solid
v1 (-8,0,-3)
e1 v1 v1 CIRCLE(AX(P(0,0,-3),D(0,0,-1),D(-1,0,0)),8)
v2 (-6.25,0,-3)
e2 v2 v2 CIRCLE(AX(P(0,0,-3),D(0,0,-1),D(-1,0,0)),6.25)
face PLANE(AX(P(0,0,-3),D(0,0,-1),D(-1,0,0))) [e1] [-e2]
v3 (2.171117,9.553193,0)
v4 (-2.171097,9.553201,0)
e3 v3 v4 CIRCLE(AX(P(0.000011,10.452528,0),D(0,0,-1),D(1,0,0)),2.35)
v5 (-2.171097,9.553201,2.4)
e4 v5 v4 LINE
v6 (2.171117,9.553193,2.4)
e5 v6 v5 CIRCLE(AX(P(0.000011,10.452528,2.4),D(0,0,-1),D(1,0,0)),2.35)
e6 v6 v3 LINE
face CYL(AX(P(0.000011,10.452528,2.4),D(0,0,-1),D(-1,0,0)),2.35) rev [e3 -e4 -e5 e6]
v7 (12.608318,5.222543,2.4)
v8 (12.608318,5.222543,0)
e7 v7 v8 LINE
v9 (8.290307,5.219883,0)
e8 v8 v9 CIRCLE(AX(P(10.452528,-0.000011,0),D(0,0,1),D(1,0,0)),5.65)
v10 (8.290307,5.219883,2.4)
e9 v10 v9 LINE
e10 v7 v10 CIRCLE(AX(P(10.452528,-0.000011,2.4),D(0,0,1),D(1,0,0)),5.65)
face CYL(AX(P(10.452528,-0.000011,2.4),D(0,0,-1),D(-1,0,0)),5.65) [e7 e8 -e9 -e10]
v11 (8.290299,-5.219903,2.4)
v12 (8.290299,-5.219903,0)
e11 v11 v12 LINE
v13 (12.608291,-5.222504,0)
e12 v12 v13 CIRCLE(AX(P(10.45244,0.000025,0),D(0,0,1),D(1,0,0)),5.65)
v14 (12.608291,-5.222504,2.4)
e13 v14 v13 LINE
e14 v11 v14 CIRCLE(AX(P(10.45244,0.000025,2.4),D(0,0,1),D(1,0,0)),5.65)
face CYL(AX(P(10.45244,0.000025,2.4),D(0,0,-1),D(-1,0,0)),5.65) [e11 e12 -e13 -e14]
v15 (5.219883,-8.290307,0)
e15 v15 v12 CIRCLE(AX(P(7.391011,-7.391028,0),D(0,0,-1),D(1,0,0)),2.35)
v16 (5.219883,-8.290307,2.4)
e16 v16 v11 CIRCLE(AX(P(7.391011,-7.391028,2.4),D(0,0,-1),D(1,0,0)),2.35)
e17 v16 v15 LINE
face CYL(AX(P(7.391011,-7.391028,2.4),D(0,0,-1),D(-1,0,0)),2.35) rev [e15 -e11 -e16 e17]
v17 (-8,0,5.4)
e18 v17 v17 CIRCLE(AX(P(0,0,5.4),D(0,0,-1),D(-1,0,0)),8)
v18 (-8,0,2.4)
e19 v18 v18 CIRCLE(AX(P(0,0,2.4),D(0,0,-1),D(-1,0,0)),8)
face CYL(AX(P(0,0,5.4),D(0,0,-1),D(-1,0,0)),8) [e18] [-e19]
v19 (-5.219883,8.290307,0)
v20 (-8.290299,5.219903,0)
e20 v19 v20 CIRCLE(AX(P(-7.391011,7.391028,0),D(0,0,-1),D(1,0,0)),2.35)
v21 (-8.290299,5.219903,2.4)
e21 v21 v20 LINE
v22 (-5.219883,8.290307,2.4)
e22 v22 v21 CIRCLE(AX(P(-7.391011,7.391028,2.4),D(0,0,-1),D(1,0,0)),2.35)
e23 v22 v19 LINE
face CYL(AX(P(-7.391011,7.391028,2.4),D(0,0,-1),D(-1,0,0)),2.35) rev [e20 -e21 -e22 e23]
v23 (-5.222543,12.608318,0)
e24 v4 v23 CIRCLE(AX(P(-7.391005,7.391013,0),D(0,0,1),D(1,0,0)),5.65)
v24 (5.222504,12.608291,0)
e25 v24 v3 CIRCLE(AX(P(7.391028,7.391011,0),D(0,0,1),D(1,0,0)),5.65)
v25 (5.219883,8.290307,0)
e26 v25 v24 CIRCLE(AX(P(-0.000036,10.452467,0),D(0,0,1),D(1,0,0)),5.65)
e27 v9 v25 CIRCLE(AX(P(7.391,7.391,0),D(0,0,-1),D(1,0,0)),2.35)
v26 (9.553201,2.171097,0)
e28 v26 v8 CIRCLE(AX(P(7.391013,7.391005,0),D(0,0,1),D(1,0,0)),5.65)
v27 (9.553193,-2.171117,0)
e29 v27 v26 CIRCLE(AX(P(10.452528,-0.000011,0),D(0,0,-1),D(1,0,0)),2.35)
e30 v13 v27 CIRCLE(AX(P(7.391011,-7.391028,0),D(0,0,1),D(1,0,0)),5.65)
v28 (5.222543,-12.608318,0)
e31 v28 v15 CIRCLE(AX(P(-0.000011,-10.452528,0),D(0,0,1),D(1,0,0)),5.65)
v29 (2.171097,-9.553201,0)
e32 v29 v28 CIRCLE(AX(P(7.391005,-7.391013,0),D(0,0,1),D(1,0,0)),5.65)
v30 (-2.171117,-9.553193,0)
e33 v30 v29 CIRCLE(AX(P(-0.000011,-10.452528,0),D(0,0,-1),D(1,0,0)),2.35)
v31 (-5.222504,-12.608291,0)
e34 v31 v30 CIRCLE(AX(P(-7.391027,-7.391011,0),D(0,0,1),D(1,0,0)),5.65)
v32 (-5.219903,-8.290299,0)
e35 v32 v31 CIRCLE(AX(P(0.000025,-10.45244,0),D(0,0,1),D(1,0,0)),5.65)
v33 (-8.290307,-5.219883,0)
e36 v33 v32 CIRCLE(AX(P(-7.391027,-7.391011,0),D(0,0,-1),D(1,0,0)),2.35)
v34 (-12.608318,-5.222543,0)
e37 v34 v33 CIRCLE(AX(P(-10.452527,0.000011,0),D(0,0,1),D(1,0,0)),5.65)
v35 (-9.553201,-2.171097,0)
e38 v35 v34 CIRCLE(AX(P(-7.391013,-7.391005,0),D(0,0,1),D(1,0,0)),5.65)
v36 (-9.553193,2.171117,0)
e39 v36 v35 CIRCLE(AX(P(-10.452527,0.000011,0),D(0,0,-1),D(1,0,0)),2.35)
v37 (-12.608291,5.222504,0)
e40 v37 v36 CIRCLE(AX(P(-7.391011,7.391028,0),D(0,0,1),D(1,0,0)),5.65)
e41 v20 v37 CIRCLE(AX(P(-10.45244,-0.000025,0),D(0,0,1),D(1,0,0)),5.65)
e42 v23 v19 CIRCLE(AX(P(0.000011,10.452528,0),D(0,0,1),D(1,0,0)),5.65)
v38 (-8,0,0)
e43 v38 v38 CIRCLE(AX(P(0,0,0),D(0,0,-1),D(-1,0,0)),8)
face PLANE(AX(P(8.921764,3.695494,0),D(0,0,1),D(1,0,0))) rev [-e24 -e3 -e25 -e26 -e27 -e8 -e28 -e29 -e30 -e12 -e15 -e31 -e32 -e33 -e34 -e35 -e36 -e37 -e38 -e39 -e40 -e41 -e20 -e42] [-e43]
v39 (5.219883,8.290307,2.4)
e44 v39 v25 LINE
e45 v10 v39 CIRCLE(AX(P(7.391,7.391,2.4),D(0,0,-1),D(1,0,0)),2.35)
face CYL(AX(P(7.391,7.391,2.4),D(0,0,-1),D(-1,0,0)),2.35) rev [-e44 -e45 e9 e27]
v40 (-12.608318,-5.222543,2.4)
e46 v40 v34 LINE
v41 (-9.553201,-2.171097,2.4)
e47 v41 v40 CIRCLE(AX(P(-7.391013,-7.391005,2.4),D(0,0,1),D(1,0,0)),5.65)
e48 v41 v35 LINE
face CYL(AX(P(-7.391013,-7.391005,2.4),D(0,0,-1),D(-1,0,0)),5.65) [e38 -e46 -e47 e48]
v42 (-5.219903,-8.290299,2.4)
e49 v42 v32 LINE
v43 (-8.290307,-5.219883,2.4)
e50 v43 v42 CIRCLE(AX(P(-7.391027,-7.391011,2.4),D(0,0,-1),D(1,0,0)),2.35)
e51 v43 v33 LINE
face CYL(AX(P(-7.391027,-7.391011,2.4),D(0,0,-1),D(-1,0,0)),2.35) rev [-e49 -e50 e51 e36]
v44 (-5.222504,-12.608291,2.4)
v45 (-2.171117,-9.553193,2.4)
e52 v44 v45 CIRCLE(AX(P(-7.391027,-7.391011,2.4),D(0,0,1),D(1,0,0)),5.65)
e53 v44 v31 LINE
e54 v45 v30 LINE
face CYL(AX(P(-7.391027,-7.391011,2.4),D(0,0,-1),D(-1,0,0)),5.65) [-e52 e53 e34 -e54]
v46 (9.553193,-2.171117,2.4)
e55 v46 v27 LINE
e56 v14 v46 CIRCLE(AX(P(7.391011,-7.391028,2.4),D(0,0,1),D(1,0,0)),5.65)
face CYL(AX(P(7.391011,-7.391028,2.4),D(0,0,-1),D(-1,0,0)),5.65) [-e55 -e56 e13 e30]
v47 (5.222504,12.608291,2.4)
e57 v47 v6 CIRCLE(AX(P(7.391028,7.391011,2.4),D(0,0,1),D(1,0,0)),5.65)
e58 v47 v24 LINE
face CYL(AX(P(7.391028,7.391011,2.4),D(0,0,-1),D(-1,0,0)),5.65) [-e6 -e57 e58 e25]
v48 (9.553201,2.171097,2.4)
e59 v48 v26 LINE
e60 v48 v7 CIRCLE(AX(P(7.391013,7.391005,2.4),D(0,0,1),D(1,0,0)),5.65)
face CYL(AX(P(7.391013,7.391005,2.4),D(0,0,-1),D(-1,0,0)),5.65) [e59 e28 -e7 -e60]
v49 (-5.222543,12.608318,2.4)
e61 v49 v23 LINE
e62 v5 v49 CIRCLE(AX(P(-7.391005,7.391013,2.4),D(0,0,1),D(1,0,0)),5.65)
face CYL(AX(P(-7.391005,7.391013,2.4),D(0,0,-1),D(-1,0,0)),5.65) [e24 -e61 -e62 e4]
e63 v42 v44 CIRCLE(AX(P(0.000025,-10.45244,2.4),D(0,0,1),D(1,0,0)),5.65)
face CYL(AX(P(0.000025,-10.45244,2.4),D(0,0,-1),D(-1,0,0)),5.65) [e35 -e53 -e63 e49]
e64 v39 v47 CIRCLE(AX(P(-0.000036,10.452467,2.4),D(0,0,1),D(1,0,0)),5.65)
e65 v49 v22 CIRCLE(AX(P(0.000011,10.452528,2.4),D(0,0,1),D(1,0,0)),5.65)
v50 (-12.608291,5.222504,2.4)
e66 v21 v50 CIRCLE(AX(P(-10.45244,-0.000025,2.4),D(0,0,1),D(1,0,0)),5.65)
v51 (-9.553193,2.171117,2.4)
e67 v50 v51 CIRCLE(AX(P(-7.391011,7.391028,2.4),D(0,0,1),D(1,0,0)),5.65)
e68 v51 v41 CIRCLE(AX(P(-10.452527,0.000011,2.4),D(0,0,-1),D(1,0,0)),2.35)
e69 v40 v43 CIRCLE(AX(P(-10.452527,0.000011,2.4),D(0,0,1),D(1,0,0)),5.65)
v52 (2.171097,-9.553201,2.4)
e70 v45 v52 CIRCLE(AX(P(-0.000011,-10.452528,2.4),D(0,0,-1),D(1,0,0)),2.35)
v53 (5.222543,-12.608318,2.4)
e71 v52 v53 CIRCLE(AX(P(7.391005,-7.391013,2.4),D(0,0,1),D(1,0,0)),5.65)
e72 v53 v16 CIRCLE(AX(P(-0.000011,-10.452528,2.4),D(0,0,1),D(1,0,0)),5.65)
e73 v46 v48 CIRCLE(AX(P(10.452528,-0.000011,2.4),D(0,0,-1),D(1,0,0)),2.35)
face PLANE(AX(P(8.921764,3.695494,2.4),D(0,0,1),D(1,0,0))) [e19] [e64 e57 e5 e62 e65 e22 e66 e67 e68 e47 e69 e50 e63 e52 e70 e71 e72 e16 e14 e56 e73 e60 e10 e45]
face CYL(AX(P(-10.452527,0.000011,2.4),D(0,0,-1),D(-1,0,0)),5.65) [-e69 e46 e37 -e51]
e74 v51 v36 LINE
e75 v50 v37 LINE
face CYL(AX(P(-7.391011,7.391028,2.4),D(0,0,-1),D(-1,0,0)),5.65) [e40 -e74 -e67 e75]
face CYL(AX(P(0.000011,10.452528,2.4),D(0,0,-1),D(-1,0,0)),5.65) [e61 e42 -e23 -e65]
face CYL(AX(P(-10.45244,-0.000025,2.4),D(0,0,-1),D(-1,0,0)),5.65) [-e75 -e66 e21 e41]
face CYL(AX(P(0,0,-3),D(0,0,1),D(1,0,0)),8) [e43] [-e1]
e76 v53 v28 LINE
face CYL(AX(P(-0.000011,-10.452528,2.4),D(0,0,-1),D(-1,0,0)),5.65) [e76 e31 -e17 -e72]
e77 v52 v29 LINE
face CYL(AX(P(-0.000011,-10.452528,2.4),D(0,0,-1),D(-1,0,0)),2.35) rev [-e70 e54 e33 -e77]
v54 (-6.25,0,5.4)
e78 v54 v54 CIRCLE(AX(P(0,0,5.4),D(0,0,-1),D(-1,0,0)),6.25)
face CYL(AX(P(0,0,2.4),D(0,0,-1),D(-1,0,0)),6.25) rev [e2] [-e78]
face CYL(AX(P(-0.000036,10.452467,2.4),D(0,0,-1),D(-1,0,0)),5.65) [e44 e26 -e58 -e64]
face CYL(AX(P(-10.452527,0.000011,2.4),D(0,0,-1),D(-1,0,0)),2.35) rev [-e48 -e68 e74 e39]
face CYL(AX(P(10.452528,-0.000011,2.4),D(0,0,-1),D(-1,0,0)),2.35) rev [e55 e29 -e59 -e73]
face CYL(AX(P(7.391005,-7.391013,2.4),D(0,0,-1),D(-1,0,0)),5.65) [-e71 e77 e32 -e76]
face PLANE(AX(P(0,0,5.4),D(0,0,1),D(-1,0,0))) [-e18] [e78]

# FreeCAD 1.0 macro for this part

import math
import FreeCAD as App
import Part
import Sketcher
from FreeCAD import Vector

doc = App.newDocument("Part")
body = doc.addObject("PartDesign::Body", "Body")

sketch1 = body.newObject("Sketcher::SketchObject", "Sketch")
sketch1.AttachmentSupport = (doc.getObject("XY_Plane"), [""])
sketch1.MapMode = "FlatFace"
sketch1.addGeometry(Part.ArcOfCircle(Part.Circle(Vector(0, 10.5, 0), Vector(0, 0, 1), 5.7), math.radians(-22), math.radians(22)), False)
sketch1.addGeometry(Part.ArcOfCircle(Part.Circle(Vector(7.4, 7.4, 0), Vector(0, 0, 1), 5.7), math.radians(113), math.radians(157)), False)
sketch1.addGeometry(Part.ArcOfCircle(Part.Circle(Vector(0, 10.5, 0), Vector(0, 0, 1), 2.3), math.radians(-157), math.radians(-23)), False)
sketch1.addGeometry(Part.ArcOfCircle(Part.Circle(Vector(-7.4, 7.4, 0), Vector(0, 0, 1), 5.6), math.radians(23), math.radians(67)), False)
sketch1.addGeometry(Part.ArcOfCircle(Part.Circle(Vector(0, 10.5, 0), Vector(0, 0, 1), 5.7), math.radians(158), math.radians(203)), False)
sketch1.addGeometry(Part.ArcOfCircle(Part.Circle(Vector(-7.4, 7.4, 0), Vector(0, 0, 1), 2.3), math.radians(-112), math.radians(22)), False)
sketch1.addGeometry(Part.ArcOfCircle(Part.Circle(Vector(-10.5, 0, 0), Vector(0, 0, 1), 5.6), math.radians(68), math.radians(112)), False)
sketch1.addGeometry(Part.ArcOfCircle(Part.Circle(Vector(-7.4, 7.4, 0), Vector(0, 0, 1), 5.7), math.radians(-157), math.radians(-113)), False)
sketch1.addGeometry(Part.ArcOfCircle(Part.Circle(Vector(-10.5, 0, 0), Vector(0, 0, 1), 2.4), math.radians(-67), math.radians(67)), False)
sketch1.addGeometry(Part.ArcOfCircle(Part.Circle(Vector(-7.4, -7.4, 0), Vector(0, 0, 1), 5.6), math.radians(113), math.radians(157)), False)
sketch1.addGeometry(Part.ArcOfCircle(Part.Circle(Vector(-10.5, 0, 0), Vector(0, 0, 1), 5.7), math.radians(-112), math.radians(-67)), False)
sketch1.addGeometry(Part.ArcOfCircle(Part.Circle(Vector(-7.4, -7.4, 0), Vector(0, 0, 1), 2.4), math.radians(-22), math.radians(112)), False)
sketch1.addGeometry(Part.ArcOfCircle(Part.Circle(Vector(0, -10.5, 0), Vector(0, 0, 1), 5.7), math.radians(158), math.radians(202)), False)
sketch1.addGeometry(Part.ArcOfCircle(Part.Circle(Vector(-7.4, -7.4, 0), Vector(0, 0, 1), 5.7), math.radians(-67), math.radians(-23)), False)
sketch1.addGeometry(Part.ArcOfCircle(Part.Circle(Vector(0, -10.5, 0), Vector(0, 0, 1), 2.4), math.radians(23), math.radians(157)), False)
sketch1.addGeometry(Part.ArcOfCircle(Part.Circle(Vector(7.4, -7.4, 0), Vector(0, 0, 1), 5.6), math.radians(-157), math.radians(-113)), False)
sketch1.addGeometry(Part.ArcOfCircle(Part.Circle(Vector(0, -10.5, 0), Vector(0, 0, 1), 5.7), math.radians(-22), math.radians(23)), False)
sketch1.addGeometry(Part.ArcOfCircle(Part.Circle(Vector(7.4, -7.4, 0), Vector(0, 0, 1), 2.4), math.radians(68), math.radians(202)), False)
sketch1.addGeometry(Part.ArcOfCircle(Part.Circle(Vector(10.5, 0, 0), Vector(0, 0, 1), 5.6), math.radians(-112), math.radians(-68)), False)
sketch1.addGeometry(Part.ArcOfCircle(Part.Circle(Vector(7.4, -7.4, 0), Vector(0, 0, 1), 5.7), math.radians(23), math.radians(67)), False)
sketch1.addGeometry(Part.ArcOfCircle(Part.Circle(Vector(10.5, 0, 0), Vector(0, 0, 1), 2.4), math.radians(113), math.radians(247)), False)
sketch1.addGeometry(Part.ArcOfCircle(Part.Circle(Vector(7.4, 7.4, 0), Vector(0, 0, 1), 5.7), math.radians(-67), math.radians(-23)), False)
sketch1.addGeometry(Part.ArcOfCircle(Part.Circle(Vector(10.5, 0, 0), Vector(0, 0, 1), 5.7), math.radians(68), math.radians(113)), False)
sketch1.addGeometry(Part.ArcOfCircle(Part.Circle(Vector(7.4, 7.4, 0), Vector(0, 0, 1), 2.4), math.radians(157), math.radians(293)), False)
sketch1.addGeometry(Part.Circle(Vector(0, 0, 0), Vector(0, 0, 1), 6.2), False)
sketch1.addConstraint(Sketcher.Constraint("Coincident", 0, 2, 1, 1))
sketch1.addConstraint(Sketcher.Constraint("Coincident", 1, 2, 2, 2))
sketch1.addConstraint(Sketcher.Constraint("Coincident", 2, 1, 3, 1))
sketch1.addConstraint(Sketcher.Constraint("Coincident", 3, 2, 4, 1))
sketch1.addConstraint(Sketcher.Constraint("Coincident", 4, 2, 5, 2))
sketch1.addConstraint(Sketcher.Constraint("Coincident", 5, 1, 6, 1))
sketch1.addConstraint(Sketcher.Constraint("Coincident", 6, 2, 7, 1))
sketch1.addConstraint(Sketcher.Constraint("Coincident", 7, 2, 8, 2))
sketch1.addConstraint(Sketcher.Constraint("Coincident", 8, 1, 9, 1))
sketch1.addConstraint(Sketcher.Constraint("Coincident", 9, 2, 10, 1))
sketch1.addConstraint(Sketcher.Constraint("Coincident", 10, 2, 11, 2))
sketch1.addConstraint(Sketcher.Constraint("Coincident", 11, 1, 12, 1))
sketch1.addConstraint(Sketcher.Constraint("Coincident", 12, 2, 13, 1))
sketch1.addConstraint(Sketcher.Constraint("Coincident", 13, 2, 14, 2))
sketch1.addConstraint(Sketcher.Constraint("Coincident", 14, 1, 15, 1))
sketch1.addConstraint(Sketcher.Constraint("Coincident", 15, 2, 16, 1))
sketch1.addConstraint(Sketcher.Constraint("Coincident", 16, 2, 17, 2))
sketch1.addConstraint(Sketcher.Constraint("Coincident", 17, 1, 18, 1))
sketch1.addConstraint(Sketcher.Constraint("Coincident", 18, 2, 19, 1))
sketch1.addConstraint(Sketcher.Constraint("Coincident", 19, 2, 20, 2))
sketch1.addConstraint(Sketcher.Constraint("Coincident", 20, 1, 21, 1))
sketch1.addConstraint(Sketcher.Constraint("Coincident", 21, 2, 22, 1))
sketch1.addConstraint(Sketcher.Constraint("Coincident", 22, 2, 23, 2))
sketch1.addConstraint(Sketcher.Constraint("Tangent", 23, 1, 0, 1))
sketch1.addConstraint(Sketcher.Constraint("Coincident", 24, 3, -1, 1))
sketch1.addConstraint(Sketcher.Constraint("Coincident", 4, 3, 2, 3))
sketch1.addConstraint(Sketcher.Constraint("Coincident", 7, 3, 5, 3))
sketch1.addConstraint(Sketcher.Constraint("Coincident", 10, 3, 8, 3))
sketch1.addConstraint(Sketcher.Constraint("Coincident", 13, 3, 11, 3))
sketch1.addConstraint(Sketcher.Constraint("Coincident", 16, 3, 14, 3))
sketch1.addConstraint(Sketcher.Constraint("Coincident", 19, 3, 17, 3))
sketch1.addConstraint(Sketcher.Constraint("Coincident", 22, 3, 20, 3))
sketch1.addConstraint(Sketcher.Constraint("Equal", 0, 1))
sketch1.addConstraint(Sketcher.Constraint("Equal", 1, 3))
sketch1.addConstraint(Sketcher.Constraint("Equal", 3, 4))
sketch1.addConstraint(Sketcher.Constraint("Equal", 2, 5))
sketch1.addConstraint(Sketcher.Constraint("Equal", 4, 6))
sketch1.addConstraint(Sketcher.Constraint("Equal", 6, 7))
sketch1.addConstraint(Sketcher.Constraint("Equal", 5, 8))
sketch1.addConstraint(Sketcher.Constraint("Equal", 7, 9))
sketch1.addConstraint(Sketcher.Constraint("Equal", 9, 10))
sketch1.addConstraint(Sketcher.Constraint("Equal", 8, 11))
sketch1.addConstraint(Sketcher.Constraint("Equal", 10, 12))
sketch1.addConstraint(Sketcher.Constraint("Equal", 12, 13))
sketch1.addConstraint(Sketcher.Constraint("Equal", 11, 14))
sketch1.addConstraint(Sketcher.Constraint("Equal", 13, 15))
sketch1.addConstraint(Sketcher.Constraint("Equal", 15, 16))
sketch1.addConstraint(Sketcher.Constraint("Equal", 14, 17))
sketch1.addConstraint(Sketcher.Constraint("Equal", 16, 18))
sketch1.addConstraint(Sketcher.Constraint("Equal", 18, 19))
sketch1.addConstraint(Sketcher.Constraint("Equal", 17, 20))
sketch1.addConstraint(Sketcher.Constraint("Equal", 19, 21))
sketch1.addConstraint(Sketcher.Constraint("Equal", 21, 22))
sketch1.addConstraint(Sketcher.Constraint("Equal", 20, 23))
sketch1.addConstraint(Sketcher.Constraint("Symmetric", 1, 3, 11, 3, -1, 1))
sketch1.addConstraint(Sketcher.Constraint("Symmetric", 3, 3, 15, 3, -1, 1))
sketch1.addConstraint(Sketcher.Constraint("Symmetric", 6, 3, 18, 3, -1, 1))
sketch1.addConstraint(Sketcher.Constraint("Symmetric", 9, 3, 21, 3, -1, 1))
sketch1.addConstraint(Sketcher.Constraint("Symmetric", 4, 2, 23, 1, -2))
sketch1.addConstraint(Sketcher.Constraint("Horizontal", 1, 3, 3, 3))
sketch1.addConstraint(Sketcher.Constraint("Vertical", 7, 3, 9, 3))
sketch1.addConstraint(Sketcher.Constraint("Vertical", 16, 2, 23, 1))
sketch1.addConstraint(Sketcher.Constraint("Diameter", 24, 12.5))
sketch1.addConstraint(Sketcher.Constraint("Radius", 0, 5.65))
sketch1.addConstraint(Sketcher.Constraint("Radius", 2, 2.35))
sketch1.addConstraint(Sketcher.Constraint("DistanceX", -1, 1, 23, 3, 7.391))
sketch1.addConstraint(Sketcher.Constraint("DistanceY", -1, 1, 23, 3, 7.391))
sketch1.addConstraint(Sketcher.Constraint("DistanceY", 8, 3, 3, 3, 7.391001))
sketch1.addConstraint(Sketcher.Constraint("DistanceY", -1, 1, 2, 1, 9.553201))
sketch1.addConstraint(Sketcher.Constraint("DistanceX", 5, 1, -1, 1, 8.290299))
sketch1.addConstraint(Sketcher.Constraint("DistanceX", 8, 1, -1, 1, 9.553201))
sketch1.addConstraint(Sketcher.Constraint("DistanceY", 11, 1, -1, 1, 8.290299))
sketch1.addConstraint(Sketcher.Constraint("DistanceY", 14, 1, -1, 1, 9.553201))
sketch1.addConstraint(Sketcher.Constraint("DistanceX", -1, 1, 17, 1, 8.290299))
sketch1.addConstraint(Sketcher.Constraint("DistanceX", -1, 1, 20, 1, 9.553201))
sketch1.addConstraint(Sketcher.Constraint("DistanceY", 5, 3, 4, 3, 3.0615))
sketch1.addConstraint(Sketcher.Constraint("DistanceY", 5, 1, 6, 2, 0.002601))
sketch1.addConstraint(Sketcher.Constraint("DistanceX", 12, 2, 11, 1, 0.002601))
sketch1.addConstraint(Sketcher.Constraint("DistanceY", 21, 3, 23, 1, 0.899302))
sketch1.addConstraint(Sketcher.Constraint("DistanceY", 6, 3, 7, 2, 2.171141))
sketch1.addConstraint(Sketcher.Constraint("DistanceY", 9, 3, 10, 2, 2.171122))
sketch1.addConstraint(Sketcher.Constraint("DistanceX", 13, 2, 12, 3, 2.171141))
sketch1.addConstraint(Sketcher.Constraint("DistanceY", 19, 2, 18, 3, 2.171141))
sketch1.addConstraint(Sketcher.Constraint("DistanceY", 22, 2, 21, 3, 2.171122))
sketch1.addConstraint(Sketcher.Constraint("DistanceX", -1, 1, 1, 2, 2.171117))
pad1 = body.newObject("PartDesign::Pad", "Pad")
pad1.Profile = sketch1
pad1.Length = 2.4

sketch2 = body.newObject("Sketcher::SketchObject", "Sketch001")
sketch2.AttachmentSupport = (doc.getObject("XY_Plane"), [""])
sketch2.MapMode = "FlatFace"
sketch2.AttachmentOffset = App.Placement(Vector(0, 0, -3), App.Rotation())
sketch2.addGeometry(Part.Circle(Vector(0, 0, 0), Vector(0, 0, 1), 8), False)
sketch2.addGeometry(Part.Circle(Vector(0, 0, 0), Vector(0, 0, 1), 6), False)
sketch2.addConstraint(Sketcher.Constraint("Coincident", 0, 3, -1, 1))
sketch2.addConstraint(Sketcher.Constraint("Coincident", 1, 3, -1, 1))
sketch2.addConstraint(Sketcher.Constraint("Diameter", 0, 16.0))
sketch2.addConstraint(Sketcher.Constraint("Diameter", 1, 12.5))
pad2 = body.newObject("PartDesign::Pad", "Pad001")
pad2.Profile = sketch2
pad2.Length = 3
doc.recompute()

datumplane = body.newObject("PartDesign::Plane", "DatumPlane")
datumplane.AttachmentSupport = (doc.getObject("XY_Plane"), [""])
datumplane.MapMode = "FlatFace"
datumplane.AttachmentOffset = App.Placement(Vector(0, 0, 1.2), App.Rotation())
mirrored = body.newObject("PartDesign::Mirrored", "Mirrored")
mirrored.Originals = [pad2]
mirrored.MirrorPlane = (datumplane, [""])
body.Tip = mirrored

doc.recompute()
